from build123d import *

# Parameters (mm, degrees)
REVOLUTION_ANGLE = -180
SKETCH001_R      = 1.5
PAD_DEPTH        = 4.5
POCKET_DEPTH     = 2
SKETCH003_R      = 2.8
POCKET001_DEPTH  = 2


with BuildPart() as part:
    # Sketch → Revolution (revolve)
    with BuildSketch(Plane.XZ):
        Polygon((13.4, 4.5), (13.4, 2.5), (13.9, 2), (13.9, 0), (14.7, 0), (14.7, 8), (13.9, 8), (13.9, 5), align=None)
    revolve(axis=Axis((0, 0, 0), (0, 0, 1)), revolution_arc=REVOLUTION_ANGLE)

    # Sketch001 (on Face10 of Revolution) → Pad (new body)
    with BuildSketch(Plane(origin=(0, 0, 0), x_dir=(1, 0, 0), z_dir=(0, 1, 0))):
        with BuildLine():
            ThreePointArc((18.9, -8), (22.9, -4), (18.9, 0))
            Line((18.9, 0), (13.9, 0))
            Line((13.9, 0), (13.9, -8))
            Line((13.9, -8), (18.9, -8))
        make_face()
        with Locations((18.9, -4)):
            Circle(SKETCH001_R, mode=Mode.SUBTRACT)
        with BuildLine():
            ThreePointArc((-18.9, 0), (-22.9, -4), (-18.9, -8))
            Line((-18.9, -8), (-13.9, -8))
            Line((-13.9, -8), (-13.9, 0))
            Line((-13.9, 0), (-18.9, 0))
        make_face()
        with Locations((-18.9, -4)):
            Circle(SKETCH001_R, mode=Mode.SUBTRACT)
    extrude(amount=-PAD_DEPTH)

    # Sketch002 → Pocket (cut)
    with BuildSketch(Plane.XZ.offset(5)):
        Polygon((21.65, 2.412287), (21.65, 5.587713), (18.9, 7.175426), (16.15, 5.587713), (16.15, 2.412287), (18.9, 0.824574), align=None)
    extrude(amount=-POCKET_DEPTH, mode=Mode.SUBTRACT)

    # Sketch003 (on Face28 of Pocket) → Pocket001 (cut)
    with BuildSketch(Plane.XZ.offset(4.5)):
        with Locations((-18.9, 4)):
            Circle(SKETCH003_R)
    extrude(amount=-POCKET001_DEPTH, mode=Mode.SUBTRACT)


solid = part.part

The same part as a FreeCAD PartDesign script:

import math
import FreeCAD as App
import Part
import Sketcher
from FreeCAD import Vector
Q = App.Units.Quantity


def add_polygon(sketch, points):
    """Adds a closed chain of lines whose ends are joined by coincident constraints."""
    first, n = sketch.GeometryCount, len(points)
    for a, b in zip(points, points[1:] + points[:1]):
        sketch.addGeometry(Part.LineSegment(App.Vector(*a, 0), App.Vector(*b, 0)), False)
    for i in range(n):
        sketch.addConstraint(Sketcher.Constraint("Coincident", first + i, 2, first + (i + 1) % n, 1))

doc = App.newDocument("Part")
body = doc.addObject("PartDesign::Body", "Body")

# Sketch on XZ plane
sketch1 = body.newObject("Sketcher::SketchObject", "Sketch")
sketch1.AttachmentSupport = (doc.getObject("XZ_Plane"), [""])
sketch1.MapMode = "FlatFace"
add_polygon(sketch1, [(13.4, 4.5), (13.4, 2.5), (13.9, 2), (13.9, 0), (14.7, 0), (14.7, 8), (13.9, 8), (13.9, 5)])  # lines 0-7
sketch1.addConstraint([
    Sketcher.Constraint("Vertical", 0),
    Sketcher.Constraint("Vertical", 2),
    Sketcher.Constraint("Horizontal", 3),
    Sketcher.Constraint("Vertical", 4),
    Sketcher.Constraint("Horizontal", 5),
    Sketcher.Constraint("Vertical", 6),
    Sketcher.Constraint("PointOnObject", 2, 2, -1),
    Sketcher.Constraint("Perpendicular", 1, 7),
    Sketcher.Constraint("Vertical", 2, 2, 5, 2),
    Sketcher.Constraint("Equal", 0, 2),
    Sketcher.Constraint("Equal", 1, 7),
    Sketcher.Constraint("DistanceY", 0, 2, 0, 1, 2.0),
    Sketcher.Constraint("DistanceY", 4, 1, 4, 2, 8.0),
    Sketcher.Constraint("DistanceY", 6, 2, 6, 1, 3.0),
    Sketcher.Constraint("DistanceX", 3, 1, 3, 2, 0.8),
    Sketcher.Constraint("DistanceX", -1, 1, 0, 2, 13.4),
])
revolution = body.newObject("PartDesign::Revolution", "Revolution")
revolution.Profile = sketch1
revolution.ReferenceAxis = (sketch1, ["V_Axis"])
revolution.Angle = 180
revolution.Reversed = True

# Sketch on XZ plane
sketch2 = body.newObject("Sketcher::SketchObject", "Sketch001")
sketch2.AttachmentSupport = (doc.getObject("XZ_Plane"), [""])
sketch2.MapMode = "FlatFace"
sketch2.addGeometry([
    Part.ArcOfCircle(Part.Circle(Vector(18.9, 4, 0), Vector(0, 0, 1), 4), math.radians(-90), math.radians(90)),  # 0
    Part.LineSegment(Vector(18.9, 0, 0), Vector(13.9, 0, 0)),  # 1
    Part.LineSegment(Vector(13.9, 0, 0), Vector(13.9, 8, 0)),  # 2
    Part.LineSegment(Vector(13.9, 8, 0), Vector(18.9, 8, 0)),  # 3
    Part.Circle(Vector(18.9, 4, 0), Vector(0, 0, 1), 1.5),  # 4
    Part.ArcOfCircle(Part.Circle(Vector(-18.9, 4, 0), Vector(0, 0, 1), 4), math.radians(90), math.radians(270)),  # 5
    Part.LineSegment(Vector(-18.9, 8, 0), Vector(-13.9, 8, 0)),  # 6
    Part.LineSegment(Vector(-13.9, 8, 0), Vector(-13.9, 0, 0)),  # 7
    Part.LineSegment(Vector(-13.9, 0, 0), Vector(-18.9, 0, 0)),  # 8
    Part.Circle(Vector(-18.9, 4, 0), Vector(0, 0, 1), 1.5),  # 9
], False)
sketch2.addConstraint([
    Sketcher.Constraint("Tangent", 0, 1, 1, 1),
    Sketcher.Constraint("Coincident", 1, 2, 2, 1),
    Sketcher.Constraint("Coincident", 2, 2, 3, 1),
    Sketcher.Constraint("Tangent", 3, 2, 0, 2),
    Sketcher.Constraint("Tangent", 5, 1, 6, 1),
    Sketcher.Constraint("Coincident", 6, 2, 7, 1),
    Sketcher.Constraint("Coincident", 7, 2, 8, 1),
    Sketcher.Constraint("Tangent", 8, 2, 5, 2),
    Sketcher.Constraint("Horizontal", 1),
    Sketcher.Constraint("Vertical", 2),
    Sketcher.Constraint("Horizontal", 3),
    Sketcher.Constraint("Horizontal", 6),
    Sketcher.Constraint("Vertical", 7),
    Sketcher.Constraint("Horizontal", 8),
    Sketcher.Constraint("Coincident", 4, 3, 0, 3),
    Sketcher.Constraint("Coincident", 9, 3, 5, 3),
    Sketcher.Constraint("Equal", 0, 5),
    Sketcher.Constraint("Equal", 4, 9),
    Sketcher.Constraint("Symmetric", 1, 2, 7, 2, -1, 1),
    Sketcher.Constraint("Symmetric", 0, 3, 5, 3, -2),
    Sketcher.Constraint("Diameter", 4, 3.0),
    Sketcher.Constraint("Radius", 0, 4.0),
    Sketcher.Constraint("DistanceX", 1, 2, 1, 1, 5.0),
    Sketcher.Constraint("DistanceX", -1, 1, 0, 3, 18.9),
])
pad1 = body.newObject("PartDesign::Pad", "Pad")
pad1.Profile = sketch2
pad1.Length = 4.5

# Sketch on XZ plane
sketch3 = body.newObject("Sketcher::SketchObject", "Sketch002")
sketch3.AttachmentSupport = (doc.getObject("XZ_Plane"), [""])
sketch3.MapMode = "FlatFace"
sketch3.AttachmentOffset = App.Placement(Vector(0, 0, 5), App.Rotation())
add_polygon(sketch3, [(21.6, 2.4), (21.6, 5.6), (18.9, 7.2), (16.1, 5.6), (16.1, 2.4), (18.9, 0.8)])  # lines 0-5
sketch3.addConstraint([
    Sketcher.Constraint("Vertical", 0),
    Sketcher.Constraint("Vertical", 3),
    Sketcher.Constraint("Parallel", 1, 4),
    Sketcher.Constraint("Parallel", 2, 5),
    Sketcher.Constraint("Horizontal", 0, 2, 2, 2),
    Sketcher.Constraint("Horizontal", 3, 2, 5, 2),
    Sketcher.Constraint("Vertical", 1, 2, 4, 2),
    Sketcher.Constraint("Angle", 1, Q("150.000004 deg")),
    Sketcher.Constraint("DistanceX", -1, 1, 1, 2, 18.9),
    Sketcher.Constraint("DistanceX", 2, 2, 0, 2, 5.5),
    Sketcher.Constraint("DistanceY", 0, 1, 0, 2, 3.175426),
    Sketcher.Constraint("DistanceY", -1, 1, 0, 2, 5.587713),
])
pocket1 = body.newObject("PartDesign::Pocket", "Pocket")
pocket1.Profile = sketch3
pocket1.Length = 2

# Sketch on XZ plane
sketch4 = body.newObject("Sketcher::SketchObject", "Sketch003")
sketch4.AttachmentSupport = (doc.getObject("XZ_Plane"), [""])
sketch4.MapMode = "FlatFace"
sketch4.AttachmentOffset = App.Placement(Vector(0, 0, 4.5), App.Rotation())
sketch4.addGeometry(Part.Circle(Vector(-18.9, 4, 0), Vector(0, 0, 1), 2.8), False)
sketch4.addConstraint([
    Sketcher.Constraint("Diameter", 0, 5.6),
    Sketcher.Constraint("DistanceY", -1, 1, 0, 3, 4.0),
    Sketcher.Constraint("DistanceX", 0, 3, -1, 1, 18.9),
])
pocket2 = body.newObject("PartDesign::Pocket", "Pocket001")
pocket2.Profile = sketch4
pocket2.Length = 2

doc.recompute()
